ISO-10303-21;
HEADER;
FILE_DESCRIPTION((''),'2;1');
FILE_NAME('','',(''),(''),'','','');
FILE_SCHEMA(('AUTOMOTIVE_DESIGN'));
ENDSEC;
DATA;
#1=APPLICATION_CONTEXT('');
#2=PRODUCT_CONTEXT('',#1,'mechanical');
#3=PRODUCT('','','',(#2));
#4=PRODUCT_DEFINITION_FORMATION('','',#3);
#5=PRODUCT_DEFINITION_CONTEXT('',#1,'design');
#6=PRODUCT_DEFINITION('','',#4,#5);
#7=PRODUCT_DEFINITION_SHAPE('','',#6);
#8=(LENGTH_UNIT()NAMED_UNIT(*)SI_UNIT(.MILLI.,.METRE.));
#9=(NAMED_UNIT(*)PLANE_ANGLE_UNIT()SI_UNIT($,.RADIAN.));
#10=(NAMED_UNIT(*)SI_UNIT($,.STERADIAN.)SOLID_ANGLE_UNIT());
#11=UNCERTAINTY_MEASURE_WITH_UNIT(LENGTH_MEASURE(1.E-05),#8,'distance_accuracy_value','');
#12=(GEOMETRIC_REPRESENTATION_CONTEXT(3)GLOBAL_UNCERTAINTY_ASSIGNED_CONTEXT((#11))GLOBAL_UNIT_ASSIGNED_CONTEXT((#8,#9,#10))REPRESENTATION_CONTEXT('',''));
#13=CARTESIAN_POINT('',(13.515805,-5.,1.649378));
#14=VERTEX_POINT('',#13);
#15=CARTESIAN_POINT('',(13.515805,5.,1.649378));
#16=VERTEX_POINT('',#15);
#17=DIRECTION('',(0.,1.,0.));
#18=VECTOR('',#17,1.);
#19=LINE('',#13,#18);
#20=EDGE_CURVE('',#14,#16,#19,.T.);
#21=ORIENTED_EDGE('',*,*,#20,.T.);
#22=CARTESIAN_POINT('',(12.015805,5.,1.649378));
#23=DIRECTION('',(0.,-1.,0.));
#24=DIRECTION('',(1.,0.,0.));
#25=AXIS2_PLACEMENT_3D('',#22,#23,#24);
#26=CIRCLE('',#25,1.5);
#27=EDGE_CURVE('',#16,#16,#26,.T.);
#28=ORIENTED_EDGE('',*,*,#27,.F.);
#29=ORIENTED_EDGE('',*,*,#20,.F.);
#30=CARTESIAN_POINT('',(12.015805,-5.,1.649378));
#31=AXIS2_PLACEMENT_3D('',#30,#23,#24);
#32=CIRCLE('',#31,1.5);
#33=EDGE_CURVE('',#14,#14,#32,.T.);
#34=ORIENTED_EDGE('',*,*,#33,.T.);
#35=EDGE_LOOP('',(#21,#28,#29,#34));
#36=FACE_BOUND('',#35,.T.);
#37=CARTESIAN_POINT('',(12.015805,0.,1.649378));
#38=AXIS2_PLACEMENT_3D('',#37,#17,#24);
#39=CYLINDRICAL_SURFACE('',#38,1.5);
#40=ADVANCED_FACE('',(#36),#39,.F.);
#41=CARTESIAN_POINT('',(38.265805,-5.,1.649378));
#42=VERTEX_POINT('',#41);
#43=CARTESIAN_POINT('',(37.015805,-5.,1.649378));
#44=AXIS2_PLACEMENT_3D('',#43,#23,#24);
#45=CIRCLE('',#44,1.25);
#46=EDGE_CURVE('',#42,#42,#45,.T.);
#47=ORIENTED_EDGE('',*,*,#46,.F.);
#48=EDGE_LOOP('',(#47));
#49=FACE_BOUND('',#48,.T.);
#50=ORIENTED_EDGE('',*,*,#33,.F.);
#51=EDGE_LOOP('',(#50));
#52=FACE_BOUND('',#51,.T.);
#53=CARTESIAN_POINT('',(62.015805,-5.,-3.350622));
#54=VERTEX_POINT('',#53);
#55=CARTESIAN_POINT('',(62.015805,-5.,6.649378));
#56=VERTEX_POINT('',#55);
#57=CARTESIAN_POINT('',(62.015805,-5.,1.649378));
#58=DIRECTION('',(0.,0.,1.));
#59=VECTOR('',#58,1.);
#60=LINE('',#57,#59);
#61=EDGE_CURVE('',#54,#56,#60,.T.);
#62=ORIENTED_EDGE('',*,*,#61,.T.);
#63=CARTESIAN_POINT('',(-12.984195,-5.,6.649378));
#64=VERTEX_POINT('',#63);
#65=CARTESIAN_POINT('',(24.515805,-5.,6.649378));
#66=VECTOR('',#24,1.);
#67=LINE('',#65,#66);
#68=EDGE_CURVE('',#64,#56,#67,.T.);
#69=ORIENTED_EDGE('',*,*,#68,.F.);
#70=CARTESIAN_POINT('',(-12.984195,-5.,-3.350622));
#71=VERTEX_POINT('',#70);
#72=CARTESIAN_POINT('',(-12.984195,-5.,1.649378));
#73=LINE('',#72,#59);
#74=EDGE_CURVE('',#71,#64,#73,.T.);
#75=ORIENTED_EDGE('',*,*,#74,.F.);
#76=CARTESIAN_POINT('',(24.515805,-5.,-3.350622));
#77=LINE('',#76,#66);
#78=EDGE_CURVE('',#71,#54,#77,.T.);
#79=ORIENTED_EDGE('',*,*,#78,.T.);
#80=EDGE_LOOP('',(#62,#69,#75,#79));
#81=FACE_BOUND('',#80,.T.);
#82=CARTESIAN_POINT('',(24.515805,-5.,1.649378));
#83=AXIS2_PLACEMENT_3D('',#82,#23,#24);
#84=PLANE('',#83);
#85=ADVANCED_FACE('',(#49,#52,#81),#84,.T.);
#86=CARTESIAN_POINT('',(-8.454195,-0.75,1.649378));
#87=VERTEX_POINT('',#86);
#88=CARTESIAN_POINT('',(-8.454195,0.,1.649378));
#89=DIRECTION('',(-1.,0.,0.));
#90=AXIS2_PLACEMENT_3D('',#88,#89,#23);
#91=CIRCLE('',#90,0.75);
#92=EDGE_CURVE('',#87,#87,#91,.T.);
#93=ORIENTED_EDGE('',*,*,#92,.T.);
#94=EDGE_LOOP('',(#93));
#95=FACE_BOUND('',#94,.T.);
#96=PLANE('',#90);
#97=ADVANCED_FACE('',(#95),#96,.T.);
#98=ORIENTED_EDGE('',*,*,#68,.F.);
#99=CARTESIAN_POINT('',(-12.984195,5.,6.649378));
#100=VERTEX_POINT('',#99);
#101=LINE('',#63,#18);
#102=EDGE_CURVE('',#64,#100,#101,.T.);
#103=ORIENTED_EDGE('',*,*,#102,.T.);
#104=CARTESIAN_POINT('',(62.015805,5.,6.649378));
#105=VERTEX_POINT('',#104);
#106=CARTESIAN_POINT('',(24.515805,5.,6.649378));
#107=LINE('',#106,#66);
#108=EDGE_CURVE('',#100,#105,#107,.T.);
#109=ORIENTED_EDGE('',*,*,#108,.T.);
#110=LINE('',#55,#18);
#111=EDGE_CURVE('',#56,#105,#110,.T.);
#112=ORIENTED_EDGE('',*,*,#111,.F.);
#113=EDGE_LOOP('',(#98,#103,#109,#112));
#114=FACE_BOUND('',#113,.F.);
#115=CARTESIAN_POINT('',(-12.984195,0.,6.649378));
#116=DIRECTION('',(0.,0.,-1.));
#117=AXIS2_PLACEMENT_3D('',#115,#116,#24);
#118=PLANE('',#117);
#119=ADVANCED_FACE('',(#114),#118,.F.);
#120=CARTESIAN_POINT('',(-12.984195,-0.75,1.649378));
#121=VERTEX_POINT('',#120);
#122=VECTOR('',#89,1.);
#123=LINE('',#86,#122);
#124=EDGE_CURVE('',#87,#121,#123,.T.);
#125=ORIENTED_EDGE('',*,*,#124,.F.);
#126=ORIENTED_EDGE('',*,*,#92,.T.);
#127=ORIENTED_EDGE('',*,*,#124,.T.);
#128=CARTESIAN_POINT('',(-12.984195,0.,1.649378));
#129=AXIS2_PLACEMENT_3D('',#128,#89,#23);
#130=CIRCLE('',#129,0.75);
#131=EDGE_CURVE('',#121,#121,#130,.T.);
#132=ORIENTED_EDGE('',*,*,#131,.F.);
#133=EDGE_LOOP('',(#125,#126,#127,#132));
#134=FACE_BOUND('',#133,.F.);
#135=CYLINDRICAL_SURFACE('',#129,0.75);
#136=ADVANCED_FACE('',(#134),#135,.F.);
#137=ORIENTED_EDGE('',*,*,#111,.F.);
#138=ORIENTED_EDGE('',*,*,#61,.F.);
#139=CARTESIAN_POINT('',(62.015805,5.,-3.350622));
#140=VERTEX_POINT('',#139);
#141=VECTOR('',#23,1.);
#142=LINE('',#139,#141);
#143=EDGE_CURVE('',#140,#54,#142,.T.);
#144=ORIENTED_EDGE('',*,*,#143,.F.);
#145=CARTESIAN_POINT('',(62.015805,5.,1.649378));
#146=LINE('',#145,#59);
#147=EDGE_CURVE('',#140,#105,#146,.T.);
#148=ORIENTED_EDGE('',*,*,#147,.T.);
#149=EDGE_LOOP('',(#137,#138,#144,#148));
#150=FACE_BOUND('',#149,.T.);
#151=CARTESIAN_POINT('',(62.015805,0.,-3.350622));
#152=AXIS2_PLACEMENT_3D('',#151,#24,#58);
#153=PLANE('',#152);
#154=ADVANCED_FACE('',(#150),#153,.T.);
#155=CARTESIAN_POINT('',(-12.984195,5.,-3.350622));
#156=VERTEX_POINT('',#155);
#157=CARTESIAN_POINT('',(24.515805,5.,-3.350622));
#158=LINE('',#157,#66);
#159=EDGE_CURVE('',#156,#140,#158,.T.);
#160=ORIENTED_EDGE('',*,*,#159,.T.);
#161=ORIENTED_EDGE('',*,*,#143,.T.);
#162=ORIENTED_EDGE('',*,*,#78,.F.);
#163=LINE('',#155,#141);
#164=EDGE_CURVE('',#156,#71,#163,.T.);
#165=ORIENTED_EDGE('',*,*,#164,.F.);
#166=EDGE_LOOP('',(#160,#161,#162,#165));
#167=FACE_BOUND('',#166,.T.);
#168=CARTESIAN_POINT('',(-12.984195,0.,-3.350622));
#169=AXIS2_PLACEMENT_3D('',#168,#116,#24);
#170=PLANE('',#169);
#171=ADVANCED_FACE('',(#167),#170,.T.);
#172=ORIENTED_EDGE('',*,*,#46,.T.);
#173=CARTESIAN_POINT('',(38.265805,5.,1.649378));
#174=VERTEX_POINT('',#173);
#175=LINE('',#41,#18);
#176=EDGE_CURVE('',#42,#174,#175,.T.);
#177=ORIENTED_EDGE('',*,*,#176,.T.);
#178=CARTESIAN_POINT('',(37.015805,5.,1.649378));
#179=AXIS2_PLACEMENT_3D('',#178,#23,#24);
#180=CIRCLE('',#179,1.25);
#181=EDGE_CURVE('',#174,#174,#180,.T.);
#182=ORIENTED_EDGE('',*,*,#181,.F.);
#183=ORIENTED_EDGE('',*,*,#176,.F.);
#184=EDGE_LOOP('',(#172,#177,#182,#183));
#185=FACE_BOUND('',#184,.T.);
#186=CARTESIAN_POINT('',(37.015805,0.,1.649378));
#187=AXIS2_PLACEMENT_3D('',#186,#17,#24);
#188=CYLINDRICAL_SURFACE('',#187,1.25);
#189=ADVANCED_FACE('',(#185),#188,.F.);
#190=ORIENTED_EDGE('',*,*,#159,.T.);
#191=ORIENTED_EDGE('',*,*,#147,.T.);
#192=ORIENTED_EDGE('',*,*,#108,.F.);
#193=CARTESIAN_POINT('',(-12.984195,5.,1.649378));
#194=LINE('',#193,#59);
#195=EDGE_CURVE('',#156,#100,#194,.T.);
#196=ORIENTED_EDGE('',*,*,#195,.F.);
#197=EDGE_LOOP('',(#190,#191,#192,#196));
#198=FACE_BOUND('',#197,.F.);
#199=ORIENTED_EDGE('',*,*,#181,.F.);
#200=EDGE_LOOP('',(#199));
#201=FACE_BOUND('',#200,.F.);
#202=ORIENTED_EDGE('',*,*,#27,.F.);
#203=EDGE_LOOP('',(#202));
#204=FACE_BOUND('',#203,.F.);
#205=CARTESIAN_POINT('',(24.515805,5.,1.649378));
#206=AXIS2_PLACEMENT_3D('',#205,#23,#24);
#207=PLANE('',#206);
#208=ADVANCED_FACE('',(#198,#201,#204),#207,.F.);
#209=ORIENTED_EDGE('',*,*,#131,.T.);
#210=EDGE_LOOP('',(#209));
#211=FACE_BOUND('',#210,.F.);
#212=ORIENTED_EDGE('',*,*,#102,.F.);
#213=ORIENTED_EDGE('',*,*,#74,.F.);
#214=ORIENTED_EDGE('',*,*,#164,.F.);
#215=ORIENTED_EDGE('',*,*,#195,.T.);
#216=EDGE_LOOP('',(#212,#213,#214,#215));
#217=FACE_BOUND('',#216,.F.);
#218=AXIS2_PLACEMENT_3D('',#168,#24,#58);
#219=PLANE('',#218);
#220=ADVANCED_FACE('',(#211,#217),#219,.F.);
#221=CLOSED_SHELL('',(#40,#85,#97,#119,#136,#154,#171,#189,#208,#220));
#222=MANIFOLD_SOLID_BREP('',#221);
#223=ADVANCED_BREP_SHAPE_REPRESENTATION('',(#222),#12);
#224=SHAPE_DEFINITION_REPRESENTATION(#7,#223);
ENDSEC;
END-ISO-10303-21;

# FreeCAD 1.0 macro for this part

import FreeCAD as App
import Part
import Sketcher

V = App.Vector
Q = App.Units.Quantity


def add_polygon(sketch, points):
    """Adds a closed chain of lines whose ends are joined by coincident constraints."""
    first, n = sketch.GeometryCount, len(points)
    for a, b in zip(points, points[1:] + points[:1]):
        sketch.addGeometry(Part.LineSegment(App.Vector(*a, 0), App.Vector(*b, 0)), False)
    for i in range(n):
        sketch.addConstraint(Sketcher.Constraint("Coincident", first + i, 2, first + (i + 1) % n, 1))

doc = App.newDocument("Part")
body = doc.addObject("PartDesign::Body", "Body")

sketch1 = body.newObject("Sketcher::SketchObject", "Sketch")
sketch1.AttachmentSupport = (doc.getObject("XZ_Plane"), [""])
sketch1.MapMode = "FlatFace"
add_polygon(sketch1, [(-12.984195, 6.649378), (-12.984195, -3.350622), (62.015805, -3.350622), (62.015805, 6.649378)])
sketch1.addGeometry(Part.Circle(V(12.015805, 1.649378, 0), V(0, 0, 1), 1.5), False)
sketch1.addGeometry(Part.Circle(V(37.015805, 1.649378, 0), V(0, 0, 1), 1.25), False)
sketch1.addConstraint(Sketcher.Constraint("Vertical", 0))
sketch1.addConstraint(Sketcher.Constraint("Horizontal", 1))
sketch1.addConstraint(Sketcher.Constraint("Vertical", 2))
sketch1.addConstraint(Sketcher.Constraint("Horizontal", 3))
sketch1.addConstraint(Sketcher.Constraint("Horizontal", 4, 3, 5, 3))
sketch1.addConstraint(Sketcher.Constraint("Diameter", 4, Q("3 mm")))
sketch1.addConstraint(Sketcher.Constraint("Diameter", 5, Q("2.5 mm")))
sketch1.addConstraint(Sketcher.Constraint("DistanceX", 1, 1, 1, 2, Q("75 mm")))
sketch1.addConstraint(Sketcher.Constraint("DistanceY", 0, 2, 0, 1, Q("10 mm")))
sketch1.addConstraint(Sketcher.Constraint("DistanceX", 4, 3, 5, 3, Q("25 mm")))
sketch1.addConstraint(Sketcher.Constraint("DistanceX", 0, 2, 4, 3, Q("25 mm")))
sketch1.addConstraint(Sketcher.Constraint("DistanceY", 0, 2, 4, 3, Q("5 mm")))
sketch1.addConstraint(Sketcher.Constraint("DistanceY", 0, 2, -1, 1, Q("3.350622 mm")))
sketch1.addConstraint(Sketcher.Constraint("DistanceX", -1, 1, 4, 3, Q("12.015805 mm")))
pad1 = body.newObject("PartDesign::Pad", "Pad")
pad1.Profile = sketch1
pad1.Length = 10
pad1.Midplane = True

sketch2 = body.newObject("Sketcher::SketchObject", "Sketch001")
sketch2.AttachmentSupport = (doc.getObject("YZ_Plane"), [""])
sketch2.MapMode = "FlatFace"
sketch2.AttachmentOffset = App.Placement(V(0, 0, -12.984195), App.Rotation())
sketch2.addGeometry(Part.Circle(V(0, 1.649378, 0), V(0, 0, 1), 0.75), False)
sketch2.addConstraint(Sketcher.Constraint("PointOnObject", 0, 3, -2))
sketch2.addConstraint(Sketcher.Constraint("Diameter", 0, Q("1.5 mm")))
sketch2.addConstraint(Sketcher.Constraint("DistanceY", -1, 1, 0, 3, Q("1.649378 mm")))
pocket1 = body.newObject("PartDesign::Pocket", "Pocket")
pocket1.Profile = sketch2
pocket1.Length = 9.06
pocket1.Midplane = True

doc.recompute()
